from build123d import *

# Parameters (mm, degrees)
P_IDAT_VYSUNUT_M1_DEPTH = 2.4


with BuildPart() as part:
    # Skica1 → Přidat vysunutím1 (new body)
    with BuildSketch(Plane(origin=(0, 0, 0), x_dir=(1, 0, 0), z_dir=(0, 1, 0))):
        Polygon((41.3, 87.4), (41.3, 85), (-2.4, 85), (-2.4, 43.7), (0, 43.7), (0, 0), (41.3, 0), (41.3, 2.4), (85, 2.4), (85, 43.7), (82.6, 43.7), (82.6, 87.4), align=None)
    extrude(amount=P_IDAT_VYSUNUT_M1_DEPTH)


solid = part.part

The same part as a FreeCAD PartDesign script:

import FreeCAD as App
import Part
import Sketcher
from FreeCAD import Vector

doc = App.newDocument("Part")
params = doc.addObject("Spreadsheet::Sheet", "Params")
for row, (alias, value) in enumerate([
    ("sketch1_width", "43.7 mm"),
    ("sketch1_width2", "2.4 mm"),
    ("pad1_length", "2.4 mm"),
], start=1):
    params.set(f"A{row}", alias)
    params.set(f"B{row}", "=" + value)
    params.setAlias(f"B{row}", alias)

body = doc.addObject("PartDesign::Body", "Body")

# Sketch on XZ plane
sketch1 = doc.addObject("Sketcher::SketchObject", "Sketch")
body.addObject(sketch1)
sketch1.AttachmentSupport = (doc.XZ_Plane, [""])
sketch1.MapMode = "FlatFace"
sketch1.addGeometry(Part.LineSegment(Vector(41.3, -87.4, 0), Vector(41.3, -85, 0)), False)
sketch1.addGeometry(Part.LineSegment(Vector(41.3, -85, 0), Vector(-2.4, -85, 0)), False)
sketch1.addGeometry(Part.LineSegment(Vector(-2.4, -85, 0), Vector(-2.4, -43.7, 0)), False)
sketch1.addGeometry(Part.LineSegment(Vector(-2.4, -43.7, 0), Vector(0, -43.7, 0)), False)
sketch1.addGeometry(Part.LineSegment(Vector(0, -43.7, 0), Vector(0, 0, 0)), False)
sketch1.addGeometry(Part.LineSegment(Vector(0, 0, 0), Vector(41.3, 0, 0)), False)
sketch1.addGeometry(Part.LineSegment(Vector(41.3, 0, 0), Vector(41.3, -2.4, 0)), False)
sketch1.addGeometry(Part.LineSegment(Vector(41.3, -2.4, 0), Vector(85, -2.4, 0)), False)
sketch1.addGeometry(Part.LineSegment(Vector(85, -2.4, 0), Vector(85, -43.7, 0)), False)
sketch1.addGeometry(Part.LineSegment(Vector(85, -43.7, 0), Vector(82.6, -43.7, 0)), False)
sketch1.addGeometry(Part.LineSegment(Vector(82.6, -43.7, 0), Vector(82.6, -87.4, 0)), False)
sketch1.addGeometry(Part.LineSegment(Vector(82.6, -87.4, 0), Vector(41.3, -87.4, 0)), False)
sketch1.addConstraint(Sketcher.Constraint("Coincident", 0, 2, 1, 1))
sketch1.addConstraint(Sketcher.Constraint("Coincident", 1, 2, 2, 1))
sketch1.addConstraint(Sketcher.Constraint("Coincident", 2, 2, 3, 1))
sketch1.addConstraint(Sketcher.Constraint("Coincident", 3, 2, 4, 1))
sketch1.addConstraint(Sketcher.Constraint("Coincident", 4, 2, 5, 1))
sketch1.addConstraint(Sketcher.Constraint("Coincident", 5, 2, 6, 1))
sketch1.addConstraint(Sketcher.Constraint("Coincident", 6, 2, 7, 1))
sketch1.addConstraint(Sketcher.Constraint("Coincident", 7, 2, 8, 1))
sketch1.addConstraint(Sketcher.Constraint("Coincident", 8, 2, 9, 1))
sketch1.addConstraint(Sketcher.Constraint("Coincident", 9, 2, 10, 1))
sketch1.addConstraint(Sketcher.Constraint("Coincident", 10, 2, 11, 1))
sketch1.addConstraint(Sketcher.Constraint("Coincident", 11, 2, 0, 1))
sketch1.addConstraint(Sketcher.Constraint("Vertical", 0))
sketch1.addConstraint(Sketcher.Constraint("Horizontal", 1))
sketch1.addConstraint(Sketcher.Constraint("Vertical", 2))
sketch1.addConstraint(Sketcher.Constraint("Horizontal", 3))
sketch1.addConstraint(Sketcher.Constraint("Vertical", 4))
sketch1.addConstraint(Sketcher.Constraint("Horizontal", 5))
sketch1.addConstraint(Sketcher.Constraint("Vertical", 6))
sketch1.addConstraint(Sketcher.Constraint("Horizontal", 7))
sketch1.addConstraint(Sketcher.Constraint("Vertical", 8))
sketch1.addConstraint(Sketcher.Constraint("Horizontal", 9))
sketch1.addConstraint(Sketcher.Constraint("Vertical", 10))
sketch1.addConstraint(Sketcher.Constraint("Horizontal", 11))
sketch1.addConstraint(Sketcher.Constraint("Coincident", 4, 2, -1, 1))
sketch1.addConstraint(Sketcher.Constraint("Horizontal", 3, 2, 8, 2))
sketch1.addConstraint(Sketcher.Constraint("Vertical", 0, 2, 5, 2))
sketch1.addConstraint(Sketcher.Constraint("Equal", 1, 7))
sketch1.addConstraint(Sketcher.Constraint("Equal", 3, 9))
sketch1.addConstraint(Sketcher.Constraint("Equal", 9, 0))
sketch1.addConstraint(Sketcher.Constraint("Equal", 11, 2))
sketch1.addConstraint(Sketcher.Constraint("Equal", 7, 4))
sketch1.addConstraint(Sketcher.Constraint("Equal", 0, 6))
sketch1.addConstraint(Sketcher.Constraint("DistanceX", 1, 2, 1, 1, 43.7))
sketch1.addConstraint(Sketcher.Constraint("DistanceX", 3, 1, 3, 2, 2.4))
sketch1.setExpression("Constraints[33]", "Params.sketch1_width")
sketch1.setExpression("Constraints[34]", "Params.sketch1_width2")
pad1 = doc.addObject("PartDesign::Pad", "Pad")
body.addObject(pad1)
pad1.Profile = sketch1
pad1.setExpression("Length", "Params.pad1_length")
pad1.Reversed = True

doc.recompute()
